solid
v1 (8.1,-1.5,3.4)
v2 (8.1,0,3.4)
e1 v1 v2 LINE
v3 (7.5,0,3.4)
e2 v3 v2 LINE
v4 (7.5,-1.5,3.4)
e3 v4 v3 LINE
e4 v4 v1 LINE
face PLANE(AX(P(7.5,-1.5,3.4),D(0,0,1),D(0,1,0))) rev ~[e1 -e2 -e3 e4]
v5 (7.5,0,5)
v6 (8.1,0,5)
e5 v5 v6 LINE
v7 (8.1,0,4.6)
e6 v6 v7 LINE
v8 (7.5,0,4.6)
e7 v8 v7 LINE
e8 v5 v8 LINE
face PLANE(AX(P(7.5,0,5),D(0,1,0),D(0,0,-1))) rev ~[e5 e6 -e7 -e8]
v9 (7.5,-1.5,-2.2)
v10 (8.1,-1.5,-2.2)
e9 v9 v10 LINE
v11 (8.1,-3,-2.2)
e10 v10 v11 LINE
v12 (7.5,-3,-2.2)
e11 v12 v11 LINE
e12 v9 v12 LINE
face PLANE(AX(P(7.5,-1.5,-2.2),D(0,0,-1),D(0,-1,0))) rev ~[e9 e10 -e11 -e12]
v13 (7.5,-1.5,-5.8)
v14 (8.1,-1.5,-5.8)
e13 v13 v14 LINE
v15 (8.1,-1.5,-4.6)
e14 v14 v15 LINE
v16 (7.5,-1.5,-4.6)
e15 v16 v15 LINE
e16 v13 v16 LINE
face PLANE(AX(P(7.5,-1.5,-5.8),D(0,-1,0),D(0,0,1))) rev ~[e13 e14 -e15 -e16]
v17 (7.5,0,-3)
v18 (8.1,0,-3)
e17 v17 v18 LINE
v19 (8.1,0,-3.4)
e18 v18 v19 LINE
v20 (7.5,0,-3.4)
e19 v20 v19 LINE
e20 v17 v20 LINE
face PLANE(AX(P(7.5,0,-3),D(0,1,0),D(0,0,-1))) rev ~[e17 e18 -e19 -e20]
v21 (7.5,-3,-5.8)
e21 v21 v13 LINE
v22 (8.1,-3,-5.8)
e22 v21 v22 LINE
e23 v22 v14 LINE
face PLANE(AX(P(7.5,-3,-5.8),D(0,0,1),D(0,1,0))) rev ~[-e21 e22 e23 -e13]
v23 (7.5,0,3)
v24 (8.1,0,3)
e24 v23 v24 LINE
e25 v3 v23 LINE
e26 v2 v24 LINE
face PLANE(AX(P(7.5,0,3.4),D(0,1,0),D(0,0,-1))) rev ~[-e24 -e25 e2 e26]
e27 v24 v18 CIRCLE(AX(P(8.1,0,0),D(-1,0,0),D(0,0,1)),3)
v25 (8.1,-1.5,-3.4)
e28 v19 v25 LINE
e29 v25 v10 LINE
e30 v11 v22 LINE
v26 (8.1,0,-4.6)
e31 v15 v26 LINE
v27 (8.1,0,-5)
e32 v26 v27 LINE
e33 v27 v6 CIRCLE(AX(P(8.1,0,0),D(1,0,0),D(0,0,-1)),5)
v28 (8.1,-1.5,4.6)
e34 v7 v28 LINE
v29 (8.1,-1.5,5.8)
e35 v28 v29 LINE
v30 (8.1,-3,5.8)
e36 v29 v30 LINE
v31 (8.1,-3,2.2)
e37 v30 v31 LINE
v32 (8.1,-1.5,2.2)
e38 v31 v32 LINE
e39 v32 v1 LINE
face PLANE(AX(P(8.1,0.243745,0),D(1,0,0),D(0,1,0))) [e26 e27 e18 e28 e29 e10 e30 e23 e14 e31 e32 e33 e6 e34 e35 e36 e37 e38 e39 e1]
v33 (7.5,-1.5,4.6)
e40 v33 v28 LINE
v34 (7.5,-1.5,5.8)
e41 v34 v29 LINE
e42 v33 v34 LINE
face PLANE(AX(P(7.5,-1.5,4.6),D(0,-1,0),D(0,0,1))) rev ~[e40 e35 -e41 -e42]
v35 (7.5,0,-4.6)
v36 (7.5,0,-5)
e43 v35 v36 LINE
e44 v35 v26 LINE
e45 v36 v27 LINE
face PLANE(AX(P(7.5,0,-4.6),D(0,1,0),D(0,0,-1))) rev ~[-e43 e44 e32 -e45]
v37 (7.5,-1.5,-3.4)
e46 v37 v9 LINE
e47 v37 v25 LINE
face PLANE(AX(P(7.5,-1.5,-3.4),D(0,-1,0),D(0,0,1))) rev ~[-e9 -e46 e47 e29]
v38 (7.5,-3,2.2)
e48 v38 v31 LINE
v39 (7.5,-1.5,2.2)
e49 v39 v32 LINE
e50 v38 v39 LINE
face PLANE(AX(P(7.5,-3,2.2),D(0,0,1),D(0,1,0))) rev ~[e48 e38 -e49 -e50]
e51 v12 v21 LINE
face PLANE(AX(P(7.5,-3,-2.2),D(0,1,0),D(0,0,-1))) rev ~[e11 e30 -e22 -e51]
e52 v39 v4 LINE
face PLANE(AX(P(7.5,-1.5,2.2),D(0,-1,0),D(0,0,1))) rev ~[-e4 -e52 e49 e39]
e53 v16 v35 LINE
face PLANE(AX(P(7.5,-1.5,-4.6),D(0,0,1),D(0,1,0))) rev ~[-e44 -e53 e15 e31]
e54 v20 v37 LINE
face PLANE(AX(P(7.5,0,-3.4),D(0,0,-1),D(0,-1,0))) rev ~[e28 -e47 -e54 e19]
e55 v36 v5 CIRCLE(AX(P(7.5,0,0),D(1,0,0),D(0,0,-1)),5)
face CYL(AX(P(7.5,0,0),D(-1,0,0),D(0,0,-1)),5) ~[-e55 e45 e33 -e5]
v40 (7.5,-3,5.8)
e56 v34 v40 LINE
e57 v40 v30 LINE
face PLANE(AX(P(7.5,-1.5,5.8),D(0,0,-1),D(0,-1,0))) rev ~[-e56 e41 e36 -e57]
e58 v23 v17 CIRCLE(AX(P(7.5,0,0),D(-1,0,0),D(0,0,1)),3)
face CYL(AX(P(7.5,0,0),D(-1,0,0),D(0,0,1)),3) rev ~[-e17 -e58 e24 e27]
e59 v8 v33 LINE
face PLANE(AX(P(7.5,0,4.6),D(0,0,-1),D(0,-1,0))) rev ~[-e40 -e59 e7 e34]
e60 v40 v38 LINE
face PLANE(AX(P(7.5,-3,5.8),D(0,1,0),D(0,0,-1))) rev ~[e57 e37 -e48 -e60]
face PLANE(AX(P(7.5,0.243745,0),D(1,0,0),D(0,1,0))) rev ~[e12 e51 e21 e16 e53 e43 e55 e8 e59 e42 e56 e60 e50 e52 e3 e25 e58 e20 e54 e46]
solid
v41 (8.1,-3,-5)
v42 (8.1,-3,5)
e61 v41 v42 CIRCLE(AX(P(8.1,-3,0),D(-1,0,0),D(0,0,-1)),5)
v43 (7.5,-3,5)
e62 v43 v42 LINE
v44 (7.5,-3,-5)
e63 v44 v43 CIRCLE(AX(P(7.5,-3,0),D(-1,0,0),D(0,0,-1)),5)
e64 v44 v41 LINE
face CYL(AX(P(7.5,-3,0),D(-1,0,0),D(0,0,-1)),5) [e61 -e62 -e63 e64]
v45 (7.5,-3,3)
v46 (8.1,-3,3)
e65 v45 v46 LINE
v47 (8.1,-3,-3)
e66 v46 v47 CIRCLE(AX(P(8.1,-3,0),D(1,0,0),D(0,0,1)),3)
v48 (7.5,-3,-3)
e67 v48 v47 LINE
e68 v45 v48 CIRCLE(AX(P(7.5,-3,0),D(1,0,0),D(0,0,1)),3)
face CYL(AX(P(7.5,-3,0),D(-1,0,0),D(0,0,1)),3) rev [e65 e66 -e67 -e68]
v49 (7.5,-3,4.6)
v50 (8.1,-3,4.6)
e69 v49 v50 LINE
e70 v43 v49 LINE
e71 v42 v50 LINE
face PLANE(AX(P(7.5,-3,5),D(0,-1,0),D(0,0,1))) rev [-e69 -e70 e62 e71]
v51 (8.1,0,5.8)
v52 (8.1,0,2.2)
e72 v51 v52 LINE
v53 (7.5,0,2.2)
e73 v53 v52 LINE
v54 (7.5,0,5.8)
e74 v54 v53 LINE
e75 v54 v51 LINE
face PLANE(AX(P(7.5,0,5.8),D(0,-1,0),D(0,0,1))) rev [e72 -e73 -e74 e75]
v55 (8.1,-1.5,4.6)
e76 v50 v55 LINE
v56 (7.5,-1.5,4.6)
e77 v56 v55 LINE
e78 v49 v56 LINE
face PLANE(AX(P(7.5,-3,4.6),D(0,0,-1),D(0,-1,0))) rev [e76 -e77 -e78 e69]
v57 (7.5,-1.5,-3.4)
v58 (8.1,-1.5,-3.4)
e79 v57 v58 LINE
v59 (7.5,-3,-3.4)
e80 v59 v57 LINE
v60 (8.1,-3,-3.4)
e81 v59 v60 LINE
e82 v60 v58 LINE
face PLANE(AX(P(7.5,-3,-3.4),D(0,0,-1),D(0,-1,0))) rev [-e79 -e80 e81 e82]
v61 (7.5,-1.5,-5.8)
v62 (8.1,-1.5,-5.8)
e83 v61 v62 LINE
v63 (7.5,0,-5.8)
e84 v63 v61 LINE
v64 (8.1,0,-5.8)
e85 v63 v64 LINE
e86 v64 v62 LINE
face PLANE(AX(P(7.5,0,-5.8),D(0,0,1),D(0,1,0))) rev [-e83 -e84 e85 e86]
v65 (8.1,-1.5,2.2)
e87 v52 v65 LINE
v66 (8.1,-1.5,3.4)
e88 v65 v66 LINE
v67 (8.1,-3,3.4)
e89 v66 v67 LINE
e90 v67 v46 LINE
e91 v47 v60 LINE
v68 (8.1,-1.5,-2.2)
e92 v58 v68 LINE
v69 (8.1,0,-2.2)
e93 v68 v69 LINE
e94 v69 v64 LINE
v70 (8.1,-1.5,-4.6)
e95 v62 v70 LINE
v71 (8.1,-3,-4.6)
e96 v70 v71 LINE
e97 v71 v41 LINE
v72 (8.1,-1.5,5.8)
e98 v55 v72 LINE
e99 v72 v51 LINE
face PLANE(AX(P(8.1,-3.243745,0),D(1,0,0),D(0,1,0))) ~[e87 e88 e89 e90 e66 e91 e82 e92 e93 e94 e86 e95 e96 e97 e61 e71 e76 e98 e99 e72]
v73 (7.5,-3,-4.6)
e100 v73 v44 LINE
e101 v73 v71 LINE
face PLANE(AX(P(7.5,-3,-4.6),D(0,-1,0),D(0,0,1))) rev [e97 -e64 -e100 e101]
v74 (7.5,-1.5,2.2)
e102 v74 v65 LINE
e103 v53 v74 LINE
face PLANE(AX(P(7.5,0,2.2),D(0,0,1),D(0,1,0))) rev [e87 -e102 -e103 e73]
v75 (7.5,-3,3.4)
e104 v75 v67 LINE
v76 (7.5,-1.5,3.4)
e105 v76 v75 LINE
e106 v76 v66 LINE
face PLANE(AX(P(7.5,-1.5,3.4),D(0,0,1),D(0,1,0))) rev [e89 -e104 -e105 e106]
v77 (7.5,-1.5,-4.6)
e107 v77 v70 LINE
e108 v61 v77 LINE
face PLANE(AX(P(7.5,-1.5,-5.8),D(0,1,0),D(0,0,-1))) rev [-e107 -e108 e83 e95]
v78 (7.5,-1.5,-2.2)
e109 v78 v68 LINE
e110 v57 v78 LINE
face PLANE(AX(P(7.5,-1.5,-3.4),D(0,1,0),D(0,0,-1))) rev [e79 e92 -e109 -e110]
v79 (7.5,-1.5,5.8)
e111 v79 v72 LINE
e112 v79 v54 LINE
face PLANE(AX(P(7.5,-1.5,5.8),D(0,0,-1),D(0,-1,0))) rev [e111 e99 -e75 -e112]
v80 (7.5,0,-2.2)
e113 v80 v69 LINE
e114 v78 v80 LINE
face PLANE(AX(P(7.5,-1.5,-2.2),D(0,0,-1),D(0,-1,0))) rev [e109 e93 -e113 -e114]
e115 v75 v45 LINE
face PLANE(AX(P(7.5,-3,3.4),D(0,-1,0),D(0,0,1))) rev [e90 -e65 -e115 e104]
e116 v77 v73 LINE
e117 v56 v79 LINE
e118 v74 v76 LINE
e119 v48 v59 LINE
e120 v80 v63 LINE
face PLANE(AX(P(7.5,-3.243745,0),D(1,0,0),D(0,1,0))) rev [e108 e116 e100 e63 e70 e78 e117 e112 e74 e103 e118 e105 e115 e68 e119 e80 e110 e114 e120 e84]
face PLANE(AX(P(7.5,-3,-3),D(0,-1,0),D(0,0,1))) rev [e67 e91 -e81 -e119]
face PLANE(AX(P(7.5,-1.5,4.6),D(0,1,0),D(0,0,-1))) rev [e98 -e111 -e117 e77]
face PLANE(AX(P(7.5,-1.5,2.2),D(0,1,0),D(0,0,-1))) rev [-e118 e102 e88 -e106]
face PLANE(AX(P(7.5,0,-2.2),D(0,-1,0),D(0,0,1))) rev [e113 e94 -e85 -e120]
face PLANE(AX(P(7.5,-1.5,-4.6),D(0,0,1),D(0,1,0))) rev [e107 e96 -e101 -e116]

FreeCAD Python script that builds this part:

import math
import FreeCAD as App
import Part
import Sketcher
from FreeCAD import Vector
Q = App.Units.Quantity

doc = App.newDocument("Part")
body = doc.addObject("PartDesign::Body", "Body")

# Sketch on YZ plane
sketch1 = doc.addObject("Sketcher::SketchObject", "Sketch")
body.addObject(sketch1)
sketch1.AttachmentSupport = (doc.YZ_Plane, [""])
sketch1.MapMode = "FlatFace"
sketch1.AttachmentOffset = App.Placement(Vector(0, 0, 7.5), App.Rotation())
sketch1.addGeometry(Part.LineSegment(Vector(0, -4.6, 0), Vector(0, -5, 0)), False)
sketch1.addGeometry(Part.ArcOfCircle(Part.Circle(Vector(0, 0, 0), Vector(0, 0, 1), 5), math.radians(-90), math.radians(90)), False)
sketch1.addGeometry(Part.LineSegment(Vector(0, 5, 0), Vector(0, 4.6, 0)), False)
sketch1.addGeometry(Part.LineSegment(Vector(0, 4.6, 0), Vector(-1.5, 4.6, 0)), False)
sketch1.addGeometry(Part.LineSegment(Vector(-1.5, 4.6, 0), Vector(-1.5, 5.8, 0)), False)
sketch1.addGeometry(Part.LineSegment(Vector(-1.5, 5.8, 0), Vector(-3, 5.8, 0)), False)
sketch1.addGeometry(Part.LineSegment(Vector(-3, 5.8, 0), Vector(-3, 2.2, 0)), False)
sketch1.addGeometry(Part.LineSegment(Vector(-3, 2.2, 0), Vector(-1.5, 2.2, 0)), False)
sketch1.addGeometry(Part.LineSegment(Vector(-1.5, 2.2, 0), Vector(-1.5, 3.4, 0)), False)
sketch1.addGeometry(Part.LineSegment(Vector(-1.5, 3.4, 0), Vector(0, 3.4, 0)), False)
sketch1.addGeometry(Part.LineSegment(Vector(0, 3.4, 0), Vector(0, 3, 0)), False)
sketch1.addGeometry(Part.ArcOfCircle(Part.Circle(Vector(0, 0, 0), Vector(0, 0, 1), 3), math.radians(-90), math.radians(90)), False)
sketch1.addGeometry(Part.LineSegment(Vector(0, -3, 0), Vector(0, -3.4, 0)), False)
sketch1.addGeometry(Part.LineSegment(Vector(0, -3.4, 0), Vector(-1.5, -3.4, 0)), False)
sketch1.addGeometry(Part.LineSegment(Vector(-1.5, -3.4, 0), Vector(-1.5, -2.2, 0)), False)
sketch1.addGeometry(Part.LineSegment(Vector(-1.5, -2.2, 0), Vector(-3, -2.2, 0)), False)
sketch1.addGeometry(Part.LineSegment(Vector(-3, -2.2, 0), Vector(-3, -5.8, 0)), False)
sketch1.addGeometry(Part.LineSegment(Vector(-3, -5.8, 0), Vector(-1.5, -5.8, 0)), False)
sketch1.addGeometry(Part.LineSegment(Vector(-1.5, -5.8, 0), Vector(-1.5, -4.6, 0)), False)
sketch1.addGeometry(Part.LineSegment(Vector(-1.5, -4.6, 0), Vector(0, -4.6, 0)), False)
sketch1.addConstraint(Sketcher.Constraint("Coincident", 0, 2, 1, 1))
sketch1.addConstraint(Sketcher.Constraint("Coincident", 1, 2, 2, 1))
sketch1.addConstraint(Sketcher.Constraint("Coincident", 2, 2, 3, 1))
sketch1.addConstraint(Sketcher.Constraint("Coincident", 3, 2, 4, 1))
sketch1.addConstraint(Sketcher.Constraint("Coincident", 4, 2, 5, 1))
sketch1.addConstraint(Sketcher.Constraint("Coincident", 5, 2, 6, 1))
sketch1.addConstraint(Sketcher.Constraint("Coincident", 6, 2, 7, 1))
sketch1.addConstraint(Sketcher.Constraint("Coincident", 7, 2, 8, 1))
sketch1.addConstraint(Sketcher.Constraint("Coincident", 8, 2, 9, 1))
sketch1.addConstraint(Sketcher.Constraint("Coincident", 9, 2, 10, 1))
sketch1.addConstraint(Sketcher.Constraint("Coincident", 10, 2, 11, 2))
sketch1.addConstraint(Sketcher.Constraint("Coincident", 11, 1, 12, 1))
sketch1.addConstraint(Sketcher.Constraint("Coincident", 12, 2, 13, 1))
sketch1.addConstraint(Sketcher.Constraint("Coincident", 13, 2, 14, 1))
sketch1.addConstraint(Sketcher.Constraint("Coincident", 14, 2, 15, 1))
sketch1.addConstraint(Sketcher.Constraint("Coincident", 15, 2, 16, 1))
sketch1.addConstraint(Sketcher.Constraint("Coincident", 16, 2, 17, 1))
sketch1.addConstraint(Sketcher.Constraint("Coincident", 17, 2, 18, 1))
sketch1.addConstraint(Sketcher.Constraint("Coincident", 18, 2, 19, 1))
sketch1.addConstraint(Sketcher.Constraint("Coincident", 19, 2, 0, 1))
sketch1.addConstraint(Sketcher.Constraint("Vertical", 0))
sketch1.addConstraint(Sketcher.Constraint("Vertical", 2))
sketch1.addConstraint(Sketcher.Constraint("Horizontal", 3))
sketch1.addConstraint(Sketcher.Constraint("Vertical", 4))
sketch1.addConstraint(Sketcher.Constraint("Horizontal", 5))
sketch1.addConstraint(Sketcher.Constraint("Vertical", 6))
sketch1.addConstraint(Sketcher.Constraint("Horizontal", 7))
sketch1.addConstraint(Sketcher.Constraint("Vertical", 8))
sketch1.addConstraint(Sketcher.Constraint("Horizontal", 9))
sketch1.addConstraint(Sketcher.Constraint("Vertical", 10))
sketch1.addConstraint(Sketcher.Constraint("Vertical", 12))
sketch1.addConstraint(Sketcher.Constraint("Horizontal", 13))
sketch1.addConstraint(Sketcher.Constraint("Vertical", 14))
sketch1.addConstraint(Sketcher.Constraint("Horizontal", 15))
sketch1.addConstraint(Sketcher.Constraint("Vertical", 16))
sketch1.addConstraint(Sketcher.Constraint("Horizontal", 17))
sketch1.addConstraint(Sketcher.Constraint("Vertical", 18))
sketch1.addConstraint(Sketcher.Constraint("Horizontal", 19))
sketch1.addConstraint(Sketcher.Constraint("Coincident", 1, 3, -1, 1))
sketch1.addConstraint(Sketcher.Constraint("Coincident", 11, 3, -1, 1))
sketch1.addConstraint(Sketcher.Constraint("Symmetric", 9, 2, 12, 2, -1, 1))
sketch1.addConstraint(Sketcher.Constraint("Symmetric", 2, 2, 19, 2, -1, 1))
sketch1.addConstraint(Sketcher.Constraint("Symmetric", 7, 2, 14, 2, -1))
sketch1.addConstraint(Sketcher.Constraint("Symmetric", 5, 2, 16, 2, -1))
sketch1.addConstraint(Sketcher.Constraint("PointOnObject", 0, 2, -2))
sketch1.addConstraint(Sketcher.Constraint("PointOnObject", 9, 2, -2))
sketch1.addConstraint(Sketcher.Constraint("Vertical", 4, 2, 7, 2))
sketch1.addConstraint(Sketcher.Constraint("Vertical", 14, 2, 17, 2))
sketch1.addConstraint(Sketcher.Constraint("Equal", 3, 5))
sketch1.addConstraint(Sketcher.Constraint("Equal", 4, 8))
sketch1.addConstraint(Sketcher.Constraint("Equal", 2, 10))
sketch1.addConstraint(Sketcher.Constraint("Radius", 1, Q("5 mm")))
sketch1.addConstraint(Sketcher.Constraint("Radius", 11, Q("3 mm")))
sketch1.addConstraint(Sketcher.Constraint("DistanceX", 3, 2, 3, 1, Q("1.5 mm")))
sketch1.addConstraint(Sketcher.Constraint("DistanceY", 0, 2, 0, 1, Q("0.4 mm")))
sketch1.addConstraint(Sketcher.Constraint("DistanceY", 4, 1, 4, 2, Q("1.2 mm")))
pad1 = doc.addObject("PartDesign::Pad", "Pad")
body.addObject(pad1)
pad1.Profile = sketch1
pad1.Length = 0.6
body2 = doc.addObject("PartDesign::Body", "Body001")
doc.recompute()

mirroring = doc.addObject("Part::Mirroring", "Mirroring")
mirroring.Source = body
mirroring.Base = Vector(7.5, -1.5, 3.4)
mirroring.Normal = Vector(0, -1, 0)
body2.BaseFeature = mirroring
doc.recompute()
mirroring.Visibility = False

doc.recompute()
